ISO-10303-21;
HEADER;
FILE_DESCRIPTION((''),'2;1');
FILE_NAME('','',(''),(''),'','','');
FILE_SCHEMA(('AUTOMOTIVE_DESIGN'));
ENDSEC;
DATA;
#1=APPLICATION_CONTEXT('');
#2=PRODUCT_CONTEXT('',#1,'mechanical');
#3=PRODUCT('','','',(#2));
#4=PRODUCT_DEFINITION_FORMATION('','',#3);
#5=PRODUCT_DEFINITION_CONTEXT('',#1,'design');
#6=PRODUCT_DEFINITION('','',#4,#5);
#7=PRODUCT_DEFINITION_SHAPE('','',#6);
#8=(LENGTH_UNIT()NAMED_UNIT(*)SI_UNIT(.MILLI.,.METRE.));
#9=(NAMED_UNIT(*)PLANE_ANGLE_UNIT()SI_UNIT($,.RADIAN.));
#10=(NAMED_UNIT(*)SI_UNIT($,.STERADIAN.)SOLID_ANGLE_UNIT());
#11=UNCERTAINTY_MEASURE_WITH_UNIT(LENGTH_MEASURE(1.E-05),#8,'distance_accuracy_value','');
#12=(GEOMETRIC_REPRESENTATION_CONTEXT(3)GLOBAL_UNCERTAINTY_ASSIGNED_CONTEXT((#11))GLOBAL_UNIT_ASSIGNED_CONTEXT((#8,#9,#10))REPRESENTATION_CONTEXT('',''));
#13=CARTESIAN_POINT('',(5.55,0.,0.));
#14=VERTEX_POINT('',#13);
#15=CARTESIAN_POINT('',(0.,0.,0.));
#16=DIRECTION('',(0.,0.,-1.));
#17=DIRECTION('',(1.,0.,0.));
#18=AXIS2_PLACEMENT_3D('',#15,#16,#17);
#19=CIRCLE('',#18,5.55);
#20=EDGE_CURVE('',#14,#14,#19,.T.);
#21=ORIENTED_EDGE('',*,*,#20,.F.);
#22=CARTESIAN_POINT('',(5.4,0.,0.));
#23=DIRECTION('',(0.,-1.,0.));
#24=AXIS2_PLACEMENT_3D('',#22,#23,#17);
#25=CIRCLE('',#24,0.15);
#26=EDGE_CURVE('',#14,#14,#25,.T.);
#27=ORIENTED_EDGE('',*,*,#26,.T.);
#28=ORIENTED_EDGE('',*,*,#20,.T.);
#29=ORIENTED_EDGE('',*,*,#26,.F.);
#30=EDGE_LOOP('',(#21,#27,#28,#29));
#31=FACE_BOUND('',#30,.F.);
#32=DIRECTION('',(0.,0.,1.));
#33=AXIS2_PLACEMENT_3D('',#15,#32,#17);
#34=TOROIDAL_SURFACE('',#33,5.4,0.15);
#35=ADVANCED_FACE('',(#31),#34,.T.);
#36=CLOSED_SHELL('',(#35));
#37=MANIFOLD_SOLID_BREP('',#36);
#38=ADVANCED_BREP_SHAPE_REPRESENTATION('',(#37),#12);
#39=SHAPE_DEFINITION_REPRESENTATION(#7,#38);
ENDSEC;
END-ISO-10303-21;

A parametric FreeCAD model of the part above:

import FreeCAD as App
import Part
import Sketcher

V = App.Vector
Q = App.Units.Quantity

doc = App.newDocument("Part")
body = doc.addObject("PartDesign::Body", "Body")

sketch1 = body.newObject("Sketcher::SketchObject", "Sketch")
sketch1.AttachmentSupport = (doc.getObject("XZ_Plane"), [""])
sketch1.MapMode = "FlatFace"
sketch1.addGeometry(Part.Circle(V(5.4, 0, 0), V(0, 0, 1), 0.15), False)
sketch1.addConstraint(Sketcher.Constraint("PointOnObject", 0, 3, -1))
sketch1.addConstraint(Sketcher.Constraint("Diameter", 0, Q("0.3 mm")))
sketch1.addConstraint(Sketcher.Constraint("DistanceX", -1, 1, 0, 3, Q("5.4 mm")))
revolution = body.newObject("PartDesign::Revolution", "Revolution")
revolution.Profile = sketch1
revolution.ReferenceAxis = (sketch1, ["V_Axis"])
revolution.Angle = 360

doc.recompute()
